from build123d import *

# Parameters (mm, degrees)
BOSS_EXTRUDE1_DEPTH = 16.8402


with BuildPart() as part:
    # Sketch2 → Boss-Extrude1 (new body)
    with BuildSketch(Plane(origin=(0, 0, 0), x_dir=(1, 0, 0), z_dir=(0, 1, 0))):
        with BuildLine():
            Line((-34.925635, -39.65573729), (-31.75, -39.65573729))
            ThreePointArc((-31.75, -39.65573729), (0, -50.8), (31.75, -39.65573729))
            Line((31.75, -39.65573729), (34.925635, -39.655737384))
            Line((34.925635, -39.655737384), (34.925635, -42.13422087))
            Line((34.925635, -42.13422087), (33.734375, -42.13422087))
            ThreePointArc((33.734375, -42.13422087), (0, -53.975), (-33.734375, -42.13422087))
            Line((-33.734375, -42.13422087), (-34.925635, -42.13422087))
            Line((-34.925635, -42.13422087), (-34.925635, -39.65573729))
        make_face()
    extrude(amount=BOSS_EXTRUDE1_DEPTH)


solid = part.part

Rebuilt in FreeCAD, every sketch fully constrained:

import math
import FreeCAD as App
import Part
import Sketcher
Q = App.Units.Quantity

doc = App.newDocument("Part")
body = doc.addObject("PartDesign::Body", "Body")

sketch1 = body.newObject("Sketcher::SketchObject", "Sketch")
sketch1.AttachmentSupport = (doc.getObject("XZ_Plane"), [""])
sketch1.MapMode = "FlatFace"
sketch1.addGeometry(Part.LineSegment(App.Vector(-31.8, 39.7, 0), App.Vector(-34.9, 39.7, 0)), False)
sketch1.addGeometry(Part.LineSegment(App.Vector(-34.9, 39.7, 0), App.Vector(-34.9, 42.1, 0)), False)
sketch1.addGeometry(Part.LineSegment(App.Vector(-34.9, 42.1, 0), App.Vector(-33.7, 42.1, 0)), False)
sketch1.addGeometry(Part.ArcOfCircle(Part.Circle(App.Vector(0, 0, 0), App.Vector(0, 0, 1), 54), math.radians(51), math.radians(129)), False)
sketch1.addGeometry(Part.LineSegment(App.Vector(33.7, 42.1, 0), App.Vector(34.9, 42.1, 0)), False)
sketch1.addGeometry(Part.LineSegment(App.Vector(34.9, 42.1, 0), App.Vector(34.9, 39.7, 0)), False)
sketch1.addGeometry(Part.LineSegment(App.Vector(34.9, 39.7, 0), App.Vector(31.8, 39.7, 0)), False)
sketch1.addGeometry(Part.ArcOfCircle(Part.Circle(App.Vector(0, 0, 0), App.Vector(0, 0, 1), 50.8), math.radians(51), math.radians(129)), False)
sketch1.addConstraint(Sketcher.Constraint("Coincident", 0, 2, 1, 1))
sketch1.addConstraint(Sketcher.Constraint("Coincident", 1, 2, 2, 1))
sketch1.addConstraint(Sketcher.Constraint("Coincident", 2, 2, 3, 2))
sketch1.addConstraint(Sketcher.Constraint("Coincident", 3, 1, 4, 1))
sketch1.addConstraint(Sketcher.Constraint("Coincident", 4, 2, 5, 1))
sketch1.addConstraint(Sketcher.Constraint("Coincident", 5, 2, 6, 1))
sketch1.addConstraint(Sketcher.Constraint("Coincident", 6, 2, 7, 1))
sketch1.addConstraint(Sketcher.Constraint("Coincident", 7, 2, 0, 1))
sketch1.addConstraint(Sketcher.Constraint("Horizontal", 0))
sketch1.addConstraint(Sketcher.Constraint("Vertical", 1))
sketch1.addConstraint(Sketcher.Constraint("Horizontal", 2))
sketch1.addConstraint(Sketcher.Constraint("Horizontal", 4))
sketch1.addConstraint(Sketcher.Constraint("Vertical", 5))
sketch1.addConstraint(Sketcher.Constraint("Horizontal", 6))
sketch1.addConstraint(Sketcher.Constraint("Coincident", 3, 3, -1, 1))
sketch1.addConstraint(Sketcher.Constraint("Coincident", 7, 3, -1, 1))
sketch1.addConstraint(Sketcher.Constraint("Symmetric", 1, 2, 4, 2, -2))
sketch1.addConstraint(Sketcher.Constraint("Horizontal", 0, 2, 5, 2))
sketch1.addConstraint(Sketcher.Constraint("Radius", 7, Q("2 in")))
sketch1.addConstraint(Sketcher.Constraint("Radius", 3, Q("2.125 in")))
sketch1.addConstraint(Sketcher.Constraint("DistanceX", -1, 1, 6, 2, Q("1.25 in")))
sketch1.addConstraint(Sketcher.Constraint("DistanceX", 2, 1, 2, 2, Q("0.0469 in")))
sketch1.addConstraint(Sketcher.Constraint("DistanceX", 2, 2, -1, 1, Q("1.328125 in")))
pad1 = body.newObject("PartDesign::Pad", "Pad")
pad1.Profile = sketch1
pad1.Length = Q("0.663 in")
pad1.Reversed = True

doc.recompute()
